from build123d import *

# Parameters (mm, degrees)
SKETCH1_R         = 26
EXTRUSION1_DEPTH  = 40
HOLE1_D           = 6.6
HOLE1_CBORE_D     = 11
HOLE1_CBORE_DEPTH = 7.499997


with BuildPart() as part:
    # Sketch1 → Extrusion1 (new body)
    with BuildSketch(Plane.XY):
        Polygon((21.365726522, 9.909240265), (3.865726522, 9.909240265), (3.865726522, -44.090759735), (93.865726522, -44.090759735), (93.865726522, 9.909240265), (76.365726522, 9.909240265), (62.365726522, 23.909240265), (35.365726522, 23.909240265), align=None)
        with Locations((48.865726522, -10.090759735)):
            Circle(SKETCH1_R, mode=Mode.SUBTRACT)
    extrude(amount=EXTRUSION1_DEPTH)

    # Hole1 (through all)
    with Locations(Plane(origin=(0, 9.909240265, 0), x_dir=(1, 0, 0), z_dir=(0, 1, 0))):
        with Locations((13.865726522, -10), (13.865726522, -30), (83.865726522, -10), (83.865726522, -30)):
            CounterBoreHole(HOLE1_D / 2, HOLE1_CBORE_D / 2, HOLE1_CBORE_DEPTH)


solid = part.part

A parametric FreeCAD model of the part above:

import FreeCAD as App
import Part
import Sketcher

V = App.Vector
Q = App.Units.Quantity


def add_polygon(sketch, points):
    """Adds a closed chain of lines whose ends are joined by coincident constraints."""
    first, n = sketch.GeometryCount, len(points)
    for a, b in zip(points, points[1:] + points[:1]):
        sketch.addGeometry(Part.LineSegment(App.Vector(*a, 0), App.Vector(*b, 0)), False)
    for i in range(n):
        sketch.addConstraint(Sketcher.Constraint("Coincident", first + i, 2, first + (i + 1) % n, 1))

doc = App.newDocument("Part")
body = doc.addObject("PartDesign::Body", "Body")

# Sketch on XY plane
sketch1 = body.newObject("Sketcher::SketchObject", "Sketch")
sketch1.AttachmentSupport = (doc.getObject("XY_Plane"), [""])
sketch1.MapMode = "FlatFace"
add_polygon(sketch1, [(21, 10), (4, 10), (4, -44), (94, -44), (94, 10), (76, 10), (62, 24), (35, 24)])  # lines 0-7
sketch1.addGeometry(Part.Circle(V(49, -10, 0), V(0, 0, 1), 26), False)  # 8
sketch1.addConstraint([
    Sketcher.Constraint("Horizontal", 0),
    Sketcher.Constraint("Vertical", 1),
    Sketcher.Constraint("Horizontal", 2),
    Sketcher.Constraint("Vertical", 3),
    Sketcher.Constraint("Horizontal", 4),
    Sketcher.Constraint("Horizontal", 6),
    Sketcher.Constraint("Perpendicular", 5, 7),
    Sketcher.Constraint("Horizontal", 0, 2, 3, 2),
    Sketcher.Constraint("Equal", 0, 4),
    Sketcher.Constraint("Equal", 5, 7),
    Sketcher.Constraint("Diameter", 8, Q("52 mm")),
    Sketcher.Constraint("DistanceX", 2, 1, 2, 2, Q("90 mm")),
    Sketcher.Constraint("DistanceX", 6, 2, 6, 1, Q("27 mm")),
    Sketcher.Constraint("DistanceY", 1, 2, 1, 1, Q("54 mm")),
    Sketcher.Constraint("DistanceX", 0, 2, 0, 1, Q("17.5 mm")),
    Sketcher.Constraint("DistanceX", 0, 2, 8, 3, Q("45 mm")),
    Sketcher.Constraint("DistanceY", 8, 3, 0, 2, Q("20 mm")),
    Sketcher.Constraint("DistanceY", 8, 3, -1, 1, Q("10.09076 mm")),
    Sketcher.Constraint("DistanceX", -1, 1, 8, 3, Q("48.865727 mm")),
])
pad1 = body.newObject("PartDesign::Pad", "Pad")
pad1.Profile = sketch1
pad1.Length = 40

# Sketch on XZ plane
sketch2 = body.newObject("Sketcher::SketchObject", "Sketch001")
sketch2.AttachmentSupport = (doc.getObject("XZ_Plane"), [""])
sketch2.MapMode = "FlatFace"
sketch2.AttachmentOffset = App.Placement(V(0, 0, -9.90924), App.Rotation())
sketch2.addGeometry([
    Part.Circle(V(13.9, 10, 0), V(0, 0, 1), 3.3),
    Part.Circle(V(13.9, 30, 0), V(0, 0, 1), 3.3),
    Part.Circle(V(83.9, 10, 0), V(0, 0, 1), 3.3),
    Part.Circle(V(83.9, 30, 0), V(0, 0, 1), 3.3),
], False)
sketch2.addConstraint([
    Sketcher.Constraint("Equal", 0, 1),
    Sketcher.Constraint("Equal", 1, 2),
    Sketcher.Constraint("Equal", 2, 3),
    Sketcher.Constraint("Horizontal", 0, 3, 2, 3),
    Sketcher.Constraint("Horizontal", 1, 3, 3, 3),
    Sketcher.Constraint("Vertical", 0, 3, 1, 3),
    Sketcher.Constraint("Vertical", 2, 3, 3, 3),
    Sketcher.Constraint("Diameter", 0, Q("6.6 mm")),
    Sketcher.Constraint("DistanceY", -1, 1, 0, 3, Q("10 mm")),
    Sketcher.Constraint("DistanceY", -1, 1, 1, 3, Q("30 mm")),
    Sketcher.Constraint("DistanceX", 0, 3, 2, 3, Q("70 mm")),
    Sketcher.Constraint("DistanceX", -1, 1, 0, 3, Q("13.865727 mm")),
])
doc.recompute()
hole = body.newObject("PartDesign::Hole", "Hole")
hole.Profile = sketch2
hole.ThreadType = "None"
hole.Diameter = 6.6
hole.DepthType = "ThroughAll"
hole.HoleCutType = "Counterbore"
hole.HoleCutDiameter = 11
hole.HoleCutDepth = 7.499997
hole.Reversed = True

doc.recompute()
